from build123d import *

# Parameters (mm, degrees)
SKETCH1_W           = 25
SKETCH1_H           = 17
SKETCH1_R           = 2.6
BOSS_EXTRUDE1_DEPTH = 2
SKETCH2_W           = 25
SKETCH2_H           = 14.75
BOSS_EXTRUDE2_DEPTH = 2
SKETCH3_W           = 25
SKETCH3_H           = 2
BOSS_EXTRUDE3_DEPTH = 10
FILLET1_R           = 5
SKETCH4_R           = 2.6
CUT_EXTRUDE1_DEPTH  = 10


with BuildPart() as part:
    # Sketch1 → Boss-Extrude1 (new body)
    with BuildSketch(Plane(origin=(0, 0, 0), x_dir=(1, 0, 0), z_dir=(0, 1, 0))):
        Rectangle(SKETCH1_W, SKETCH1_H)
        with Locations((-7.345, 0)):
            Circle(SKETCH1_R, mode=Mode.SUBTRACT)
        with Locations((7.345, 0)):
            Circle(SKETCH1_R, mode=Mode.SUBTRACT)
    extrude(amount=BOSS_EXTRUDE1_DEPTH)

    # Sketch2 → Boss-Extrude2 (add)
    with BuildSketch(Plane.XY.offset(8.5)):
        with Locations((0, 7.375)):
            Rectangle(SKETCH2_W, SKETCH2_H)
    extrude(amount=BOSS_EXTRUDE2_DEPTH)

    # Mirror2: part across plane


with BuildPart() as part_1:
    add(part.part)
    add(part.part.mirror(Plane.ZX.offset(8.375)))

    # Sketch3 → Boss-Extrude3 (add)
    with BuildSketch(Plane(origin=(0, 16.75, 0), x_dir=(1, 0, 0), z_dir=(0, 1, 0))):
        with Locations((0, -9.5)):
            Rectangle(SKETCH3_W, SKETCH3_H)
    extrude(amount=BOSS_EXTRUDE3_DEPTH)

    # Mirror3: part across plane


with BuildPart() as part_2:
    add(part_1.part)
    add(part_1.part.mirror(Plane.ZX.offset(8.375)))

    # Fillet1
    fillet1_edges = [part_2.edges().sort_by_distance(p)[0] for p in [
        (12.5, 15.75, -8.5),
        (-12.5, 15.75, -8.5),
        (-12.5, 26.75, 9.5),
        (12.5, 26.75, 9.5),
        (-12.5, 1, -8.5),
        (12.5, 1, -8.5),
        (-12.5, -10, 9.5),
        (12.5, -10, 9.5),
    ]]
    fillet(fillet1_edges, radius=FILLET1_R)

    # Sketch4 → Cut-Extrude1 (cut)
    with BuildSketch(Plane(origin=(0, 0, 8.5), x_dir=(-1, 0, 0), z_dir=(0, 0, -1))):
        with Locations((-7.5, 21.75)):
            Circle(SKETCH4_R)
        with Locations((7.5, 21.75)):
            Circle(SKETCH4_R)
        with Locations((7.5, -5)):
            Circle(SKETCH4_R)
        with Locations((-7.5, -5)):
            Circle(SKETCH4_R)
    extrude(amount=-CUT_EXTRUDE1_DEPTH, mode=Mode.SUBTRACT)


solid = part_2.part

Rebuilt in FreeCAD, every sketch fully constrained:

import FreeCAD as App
import Part
import Sketcher
Q = App.Units.Quantity


def edges_at(feature, points):
    """Names of the edges that pass closest to the given points."""
    edges = feature.Shape.Edges
    near = lambda p: min(range(len(edges)), key=lambda i: edges[i].distToShape(Part.Vertex(*p))[0])
    return sorted({f"Edge{near(p) + 1}" for p in points})

doc = App.newDocument("Part")
body = doc.addObject("PartDesign::Body", "Body")

# Sketch on XZ plane
sketch1 = body.newObject("Sketcher::SketchObject", "Sketch")
sketch1.AttachmentSupport = (doc.getObject("XZ_Plane"), [""])
sketch1.MapMode = "FlatFace"
sketch1.addGeometry([
    Part.LineSegment(App.Vector(-12.5, -8.5, 0), App.Vector(-12.5, 8.5, 0)),  # 0
    Part.LineSegment(App.Vector(-12.5, 8.5, 0), App.Vector(12.5, 8.5, 0)),  # 1
    Part.LineSegment(App.Vector(12.5, 8.5, 0), App.Vector(12.5, -8.5, 0)),  # 2
    Part.LineSegment(App.Vector(12.5, -8.5, 0), App.Vector(-12.5, -8.5, 0)),  # 3
    Part.Circle(App.Vector(-7.345, 0, 0), App.Vector(0, 0, 1), 2.6),  # 4
    Part.Circle(App.Vector(7.345, 0, 0), App.Vector(0, 0, 1), 2.6),  # 5
], False)
sketch1.addConstraint([
    Sketcher.Constraint("Coincident", 0, 2, 1, 1),
    Sketcher.Constraint("Coincident", 1, 2, 2, 1),
    Sketcher.Constraint("Coincident", 2, 2, 3, 1),
    Sketcher.Constraint("Coincident", 3, 2, 0, 1),
    Sketcher.Constraint("Vertical", 0),
    Sketcher.Constraint("Horizontal", 1),
    Sketcher.Constraint("Vertical", 2),
    Sketcher.Constraint("Horizontal", 3),
    Sketcher.Constraint("Equal", 4, 5),
    Sketcher.Constraint("Symmetric", 4, 3, 5, 3, -1, 1),
    Sketcher.Constraint("Symmetric", 0, 2, 2, 2, -1, 1),
    Sketcher.Constraint("PointOnObject", 4, 3, -1),
    Sketcher.Constraint("Diameter", 4, Q("5.2 mm")),
    Sketcher.Constraint("DistanceX", 1, 1, 1, 2, Q("25 mm")),
    Sketcher.Constraint("DistanceY", 0, 1, 0, 2, Q("17 mm")),
    Sketcher.Constraint("DistanceX", 4, 3, 5, 3, Q("14.69 mm")),
])
pad1 = body.newObject("PartDesign::Pad", "Pad")
pad1.Profile = sketch1
pad1.Length = 2
pad1.Reversed = True

# Sketch on XY plane
sketch2 = body.newObject("Sketcher::SketchObject", "Sketch001")
sketch2.AttachmentSupport = (doc.getObject("XY_Plane"), [""])
sketch2.MapMode = "FlatFace"
sketch2.AttachmentOffset = App.Placement(App.Vector(0, 0, 8.5), App.Rotation())
sketch2.addGeometry([
    Part.LineSegment(App.Vector(-12.5, 14.75, 0), App.Vector(-12.5, 0, 0)),
    Part.LineSegment(App.Vector(-12.5, 0, 0), App.Vector(12.5, 0, 0)),
    Part.LineSegment(App.Vector(12.5, 0, 0), App.Vector(12.5, 14.75, 0)),
    Part.LineSegment(App.Vector(12.5, 14.75, 0), App.Vector(-12.5, 14.75, 0)),
], False)
sketch2.addConstraint([
    Sketcher.Constraint("Coincident", 0, 2, 1, 1),
    Sketcher.Constraint("Coincident", 1, 2, 2, 1),
    Sketcher.Constraint("Coincident", 2, 2, 3, 1),
    Sketcher.Constraint("Coincident", 3, 2, 0, 1),
    Sketcher.Constraint("Vertical", 0),
    Sketcher.Constraint("Horizontal", 1),
    Sketcher.Constraint("Vertical", 2),
    Sketcher.Constraint("Horizontal", 3),
    Sketcher.Constraint("Symmetric", 0, 2, 1, 2, -1, 1),
    Sketcher.Constraint("DistanceX", 1, 1, 1, 2, Q("25 mm")),
    Sketcher.Constraint("DistanceY", 0, 2, 0, 1, Q("14.75 mm")),
])
pad2 = body.newObject("PartDesign::Pad", "Pad001")
pad2.Profile = sketch2
pad2.Length = 2
body2 = doc.addObject("PartDesign::Body", "Body001")
doc.recompute()

body2.BaseFeature = body
doc.recompute()

mirroring = doc.addObject("Part::Mirroring", "Mirroring")
mirroring.Source = body
mirroring.Base = App.Vector(0, 8.375, 0)
mirroring.Normal = App.Vector(0, 1, 0)
body3 = doc.addObject("PartDesign::Body", "Body002")
body3.BaseFeature = mirroring
boolean = body2.newObject("PartDesign::Boolean", "Boolean")
boolean.Type = "Fuse"
boolean.addObjects([body3])
doc.recompute()

# Sketch on XZ plane
sketch3 = body2.newObject("Sketcher::SketchObject", "Sketch002")
sketch3.AttachmentSupport = (doc.getObject("XZ_Plane001"), [""])
sketch3.MapMode = "FlatFace"
sketch3.AttachmentOffset = App.Placement(App.Vector(0, 0, -16.75), App.Rotation())
sketch3.addGeometry([
    Part.LineSegment(App.Vector(-12.5, 8.5, 0), App.Vector(-12.5, 10.5, 0)),
    Part.LineSegment(App.Vector(-12.5, 10.5, 0), App.Vector(12.5, 10.5, 0)),
    Part.LineSegment(App.Vector(12.5, 10.5, 0), App.Vector(12.5, 8.5, 0)),
    Part.LineSegment(App.Vector(12.5, 8.5, 0), App.Vector(-12.5, 8.5, 0)),
], False)
sketch3.addConstraint([
    Sketcher.Constraint("Coincident", 0, 2, 1, 1),
    Sketcher.Constraint("Coincident", 1, 2, 2, 1),
    Sketcher.Constraint("Coincident", 2, 2, 3, 1),
    Sketcher.Constraint("Coincident", 3, 2, 0, 1),
    Sketcher.Constraint("Vertical", 0),
    Sketcher.Constraint("Horizontal", 1),
    Sketcher.Constraint("Vertical", 2),
    Sketcher.Constraint("Horizontal", 3),
    Sketcher.Constraint("DistanceX", 1, 1, 1, 2, Q("25 mm")),
    Sketcher.Constraint("DistanceY", 0, 1, 0, 2, Q("2 mm")),
    Sketcher.Constraint("DistanceX", 0, 2, -1, 1, Q("12.5 mm")),
    Sketcher.Constraint("DistanceY", -1, 1, 0, 2, Q("10.5 mm")),
])
pad3 = body2.newObject("PartDesign::Pad", "Pad002")
pad3.Profile = sketch3
pad3.Length = 10
pad3.Reversed = True
body4 = doc.addObject("PartDesign::Body", "Body003")
doc.recompute()

body4.BaseFeature = body2
doc.recompute()

mirroring2 = doc.addObject("Part::Mirroring", "Mirroring001")
mirroring2.Source = body2
mirroring2.Base = App.Vector(0, 8.375, 0)
mirroring2.Normal = App.Vector(0, 1, 0)
body5 = doc.addObject("PartDesign::Body", "Body004")
body5.BaseFeature = mirroring2
boolean2 = body4.newObject("PartDesign::Boolean", "Boolean001")
boolean2.Type = "Fuse"
boolean2.addObjects([body5])
doc.recompute()

fillet = body4.newObject("PartDesign::Fillet", "Fillet")
fillet.Base = (boolean2, edges_at(boolean2, [
    (12.5, 15.75, -8.5),
    (-12.5, 15.75, -8.5),
    (-12.5, 26.75, 9.5),
    (12.5, 26.75, 9.5),
    (-12.5, 1, -8.5),
    (12.5, 1, -8.5),
    (-12.5, -10, 9.5),
    (12.5, -10, 9.5),
]))
fillet.Radius = 5

# Sketch on XY plane
sketch4 = body4.newObject("Sketcher::SketchObject", "Sketch003")
sketch4.AttachmentSupport = (doc.getObject("XY_Plane003"), [""])
sketch4.MapMode = "FlatFace"
sketch4.AttachmentOffset = App.Placement(App.Vector(0, 0, 8.5), App.Rotation())
sketch4.addGeometry([
    Part.Circle(App.Vector(7.5, 21.75, 0), App.Vector(0, 0, 1), 2.6),
    Part.Circle(App.Vector(-7.5, 21.75, 0), App.Vector(0, 0, 1), 2.6),
    Part.Circle(App.Vector(-7.5, -5, 0), App.Vector(0, 0, 1), 2.6),
    Part.Circle(App.Vector(7.5, -5, 0), App.Vector(0, 0, 1), 2.6),
], False)
sketch4.addConstraint([
    Sketcher.Constraint("Equal", 0, 1),
    Sketcher.Constraint("Equal", 1, 2),
    Sketcher.Constraint("Equal", 2, 3),
    Sketcher.Constraint("Symmetric", 0, 3, 1, 3, -2),
    Sketcher.Constraint("Symmetric", 2, 3, 3, 3, -2),
    Sketcher.Constraint("Vertical", 1, 3, 2, 3),
    Sketcher.Constraint("Diameter", 0, Q("5.2 mm")),
    Sketcher.Constraint("DistanceY", 2, 3, -1, 1, Q("5 mm")),
    Sketcher.Constraint("DistanceX", 1, 3, 0, 3, Q("15 mm")),
    Sketcher.Constraint("DistanceY", -1, 1, 0, 3, Q("21.75 mm")),
])
pocket1 = body4.newObject("PartDesign::Pocket", "Pocket")
pocket1.Profile = sketch4
pocket1.Length = 10
pocket1.Reversed = True
mirroring.Visibility = False
mirroring2.Visibility = False

doc.recompute()
